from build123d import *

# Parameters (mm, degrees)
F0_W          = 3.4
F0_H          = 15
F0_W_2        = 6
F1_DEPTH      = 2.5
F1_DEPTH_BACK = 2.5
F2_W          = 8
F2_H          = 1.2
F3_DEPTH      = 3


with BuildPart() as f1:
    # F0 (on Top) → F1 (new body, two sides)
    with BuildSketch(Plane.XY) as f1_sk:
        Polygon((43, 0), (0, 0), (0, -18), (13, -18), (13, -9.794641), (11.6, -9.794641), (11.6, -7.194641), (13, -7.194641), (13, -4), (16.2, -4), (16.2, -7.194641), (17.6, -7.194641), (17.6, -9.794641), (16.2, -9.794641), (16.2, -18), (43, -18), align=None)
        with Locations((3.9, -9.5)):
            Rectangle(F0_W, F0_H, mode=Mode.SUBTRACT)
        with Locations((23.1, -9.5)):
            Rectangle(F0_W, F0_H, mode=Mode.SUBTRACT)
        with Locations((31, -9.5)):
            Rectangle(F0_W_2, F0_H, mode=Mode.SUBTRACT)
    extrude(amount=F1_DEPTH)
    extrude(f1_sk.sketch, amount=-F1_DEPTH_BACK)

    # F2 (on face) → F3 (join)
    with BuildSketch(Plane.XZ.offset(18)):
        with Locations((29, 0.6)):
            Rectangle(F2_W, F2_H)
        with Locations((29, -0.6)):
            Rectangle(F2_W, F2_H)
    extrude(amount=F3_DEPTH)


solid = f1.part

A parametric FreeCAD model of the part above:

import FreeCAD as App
import Part
import Sketcher

V = App.Vector
Q = App.Units.Quantity

doc = App.newDocument("Part")
body = doc.addObject("PartDesign::Body", "Body")

# Sketch on XY plane
sketch1 = body.newObject("Sketcher::SketchObject", "Sketch")
sketch1.AttachmentSupport = (doc.getObject("XY_Plane"), [""])
sketch1.MapMode = "FlatFace"
sketch1.addGeometry(Part.LineSegment(V(43, 0, 0), V(0, 0, 0)), False)
sketch1.addGeometry(Part.LineSegment(V(0, 0, 0), V(0, -18, 0)), False)
sketch1.addGeometry(Part.LineSegment(V(0, -18, 0), V(13, -18, 0)), False)
sketch1.addGeometry(Part.LineSegment(V(13, -18, 0), V(13, -9.8, 0)), False)
sketch1.addGeometry(Part.LineSegment(V(13, -9.8, 0), V(11.6, -9.8, 0)), False)
sketch1.addGeometry(Part.LineSegment(V(11.6, -9.8, 0), V(11.6, -7.2, 0)), False)
sketch1.addGeometry(Part.LineSegment(V(11.6, -7.2, 0), V(13, -7.2, 0)), False)
sketch1.addGeometry(Part.LineSegment(V(13, -7.2, 0), V(13, -4, 0)), False)
sketch1.addGeometry(Part.LineSegment(V(13, -4, 0), V(16.2, -4, 0)), False)
sketch1.addGeometry(Part.LineSegment(V(16.2, -4, 0), V(16.2, -7.2, 0)), False)
sketch1.addGeometry(Part.LineSegment(V(16.2, -7.2, 0), V(17.6, -7.2, 0)), False)
sketch1.addGeometry(Part.LineSegment(V(17.6, -7.2, 0), V(17.6, -9.8, 0)), False)
sketch1.addGeometry(Part.LineSegment(V(17.6, -9.8, 0), V(16.2, -9.8, 0)), False)
sketch1.addGeometry(Part.LineSegment(V(16.2, -9.8, 0), V(16.2, -18, 0)), False)
sketch1.addGeometry(Part.LineSegment(V(16.2, -18, 0), V(43, -18, 0)), False)
sketch1.addGeometry(Part.LineSegment(V(43, -18, 0), V(43, 0, 0)), False)
sketch1.addGeometry(Part.LineSegment(V(5.6, -17, 0), V(2.2, -17, 0)), False)
sketch1.addGeometry(Part.LineSegment(V(2.2, -17, 0), V(2.2, -2, 0)), False)
sketch1.addGeometry(Part.LineSegment(V(2.2, -2, 0), V(5.6, -2, 0)), False)
sketch1.addGeometry(Part.LineSegment(V(5.6, -2, 0), V(5.6, -17, 0)), False)
sketch1.addGeometry(Part.LineSegment(V(24.8, -17, 0), V(21.4, -17, 0)), False)
sketch1.addGeometry(Part.LineSegment(V(21.4, -17, 0), V(21.4, -2, 0)), False)
sketch1.addGeometry(Part.LineSegment(V(21.4, -2, 0), V(24.8, -2, 0)), False)
sketch1.addGeometry(Part.LineSegment(V(24.8, -2, 0), V(24.8, -17, 0)), False)
sketch1.addGeometry(Part.LineSegment(V(34, -17, 0), V(28, -17, 0)), False)
sketch1.addGeometry(Part.LineSegment(V(28, -17, 0), V(28, -2, 0)), False)
sketch1.addGeometry(Part.LineSegment(V(28, -2, 0), V(34, -2, 0)), False)
sketch1.addGeometry(Part.LineSegment(V(34, -2, 0), V(34, -17, 0)), False)
sketch1.addConstraint(Sketcher.Constraint("Coincident", 0, 2, 1, 1))
sketch1.addConstraint(Sketcher.Constraint("Coincident", 1, 2, 2, 1))
sketch1.addConstraint(Sketcher.Constraint("Coincident", 2, 2, 3, 1))
sketch1.addConstraint(Sketcher.Constraint("Coincident", 3, 2, 4, 1))
sketch1.addConstraint(Sketcher.Constraint("Coincident", 4, 2, 5, 1))
sketch1.addConstraint(Sketcher.Constraint("Coincident", 5, 2, 6, 1))
sketch1.addConstraint(Sketcher.Constraint("Coincident", 6, 2, 7, 1))
sketch1.addConstraint(Sketcher.Constraint("Coincident", 7, 2, 8, 1))
sketch1.addConstraint(Sketcher.Constraint("Coincident", 8, 2, 9, 1))
sketch1.addConstraint(Sketcher.Constraint("Coincident", 9, 2, 10, 1))
sketch1.addConstraint(Sketcher.Constraint("Coincident", 10, 2, 11, 1))
sketch1.addConstraint(Sketcher.Constraint("Coincident", 11, 2, 12, 1))
sketch1.addConstraint(Sketcher.Constraint("Coincident", 12, 2, 13, 1))
sketch1.addConstraint(Sketcher.Constraint("Coincident", 13, 2, 14, 1))
sketch1.addConstraint(Sketcher.Constraint("Coincident", 14, 2, 15, 1))
sketch1.addConstraint(Sketcher.Constraint("Coincident", 15, 2, 0, 1))
sketch1.addConstraint(Sketcher.Constraint("Coincident", 16, 2, 17, 1))
sketch1.addConstraint(Sketcher.Constraint("Coincident", 17, 2, 18, 1))
sketch1.addConstraint(Sketcher.Constraint("Coincident", 18, 2, 19, 1))
sketch1.addConstraint(Sketcher.Constraint("Coincident", 19, 2, 16, 1))
sketch1.addConstraint(Sketcher.Constraint("Coincident", 20, 2, 21, 1))
sketch1.addConstraint(Sketcher.Constraint("Coincident", 21, 2, 22, 1))
sketch1.addConstraint(Sketcher.Constraint("Coincident", 22, 2, 23, 1))
sketch1.addConstraint(Sketcher.Constraint("Coincident", 23, 2, 20, 1))
sketch1.addConstraint(Sketcher.Constraint("Coincident", 24, 2, 25, 1))
sketch1.addConstraint(Sketcher.Constraint("Coincident", 25, 2, 26, 1))
sketch1.addConstraint(Sketcher.Constraint("Coincident", 26, 2, 27, 1))
sketch1.addConstraint(Sketcher.Constraint("Coincident", 27, 2, 24, 1))
sketch1.addConstraint(Sketcher.Constraint("Horizontal", 0))
sketch1.addConstraint(Sketcher.Constraint("Vertical", 1))
sketch1.addConstraint(Sketcher.Constraint("Horizontal", 2))
sketch1.addConstraint(Sketcher.Constraint("Vertical", 3))
sketch1.addConstraint(Sketcher.Constraint("Horizontal", 4))
sketch1.addConstraint(Sketcher.Constraint("Vertical", 5))
sketch1.addConstraint(Sketcher.Constraint("Horizontal", 6))
sketch1.addConstraint(Sketcher.Constraint("Vertical", 7))
sketch1.addConstraint(Sketcher.Constraint("Horizontal", 8))
sketch1.addConstraint(Sketcher.Constraint("Vertical", 9))
sketch1.addConstraint(Sketcher.Constraint("Horizontal", 10))
sketch1.addConstraint(Sketcher.Constraint("Vertical", 11))
sketch1.addConstraint(Sketcher.Constraint("Horizontal", 12))
sketch1.addConstraint(Sketcher.Constraint("Vertical", 13))
sketch1.addConstraint(Sketcher.Constraint("Horizontal", 14))
sketch1.addConstraint(Sketcher.Constraint("Vertical", 15))
sketch1.addConstraint(Sketcher.Constraint("Horizontal", 16))
sketch1.addConstraint(Sketcher.Constraint("Vertical", 17))
sketch1.addConstraint(Sketcher.Constraint("Horizontal", 18))
sketch1.addConstraint(Sketcher.Constraint("Vertical", 19))
sketch1.addConstraint(Sketcher.Constraint("Horizontal", 20))
sketch1.addConstraint(Sketcher.Constraint("Vertical", 21))
sketch1.addConstraint(Sketcher.Constraint("Horizontal", 22))
sketch1.addConstraint(Sketcher.Constraint("Vertical", 23))
sketch1.addConstraint(Sketcher.Constraint("Horizontal", 24))
sketch1.addConstraint(Sketcher.Constraint("Vertical", 25))
sketch1.addConstraint(Sketcher.Constraint("Horizontal", 26))
sketch1.addConstraint(Sketcher.Constraint("Vertical", 27))
sketch1.addConstraint(Sketcher.Constraint("Coincident", 0, 2, -1, 1))
sketch1.addConstraint(Sketcher.Constraint("Horizontal", 6, 2, 9, 2))
sketch1.addConstraint(Sketcher.Constraint("Horizontal", 4, 2, 11, 2))
sketch1.addConstraint(Sketcher.Constraint("Horizontal", 2, 2, 13, 2))
sketch1.addConstraint(Sketcher.Constraint("Horizontal", 19, 2, 20, 2))
sketch1.addConstraint(Sketcher.Constraint("Horizontal", 18, 2, 21, 2))
sketch1.addConstraint(Sketcher.Constraint("Horizontal", 23, 2, 24, 2))
sketch1.addConstraint(Sketcher.Constraint("Horizontal", 22, 2, 25, 2))
sketch1.addConstraint(Sketcher.Constraint("Vertical", 3, 2, 6, 2))
sketch1.addConstraint(Sketcher.Constraint("Vertical", 9, 2, 12, 2))
sketch1.addConstraint(Sketcher.Constraint("Equal", 6, 10))
sketch1.addConstraint(Sketcher.Constraint("Equal", 18, 20))
sketch1.addConstraint(Sketcher.Constraint("DistanceX", 0, 2, 0, 1, Q("43 mm")))
sketch1.addConstraint(Sketcher.Constraint("DistanceX", 2, 1, 2, 2, Q("13 mm")))
sketch1.addConstraint(Sketcher.Constraint("DistanceX", 24, 2, 24, 1, Q("6 mm")))
sketch1.addConstraint(Sketcher.Constraint("DistanceY", 1, 2, 1, 1, Q("18 mm")))
sketch1.addConstraint(Sketcher.Constraint("DistanceY", 17, 1, 17, 2, Q("15 mm")))
sketch1.addConstraint(Sketcher.Constraint("DistanceX", 4, 2, 4, 1, Q("1.4 mm")))
sketch1.addConstraint(Sketcher.Constraint("DistanceX", 8, 1, 8, 2, Q("3.2 mm")))
sketch1.addConstraint(Sketcher.Constraint("DistanceX", 16, 2, 16, 1, Q("3.4 mm")))
sketch1.addConstraint(Sketcher.Constraint("DistanceY", 5, 1, 5, 2, Q("2.6 mm")))
sketch1.addConstraint(Sketcher.Constraint("DistanceY", 7, 2, -1, 1, Q("4 mm")))
sketch1.addConstraint(Sketcher.Constraint("DistanceY", 16, 2, -1, 1, Q("17 mm")))
sketch1.addConstraint(Sketcher.Constraint("DistanceX", -1, 1, 24, 2, Q("28 mm")))
sketch1.addConstraint(Sketcher.Constraint("DistanceX", 18, 2, 5, 2, Q("6 mm")))
sketch1.addConstraint(Sketcher.Constraint("DistanceX", -1, 1, 20, 2, Q("21.4 mm")))
sketch1.addConstraint(Sketcher.Constraint("DistanceY", 3, 1, 3, 2, Q("8.205359 mm")))
pad1 = body.newObject("PartDesign::Pad", "Pad")
pad1.Profile = sketch1
pad1.Type = "TwoLengths"
pad1.Length = 2.5
pad1.Length2 = 2.5

# Sketch on XZ plane
sketch2 = body.newObject("Sketcher::SketchObject", "Sketch001")
sketch2.AttachmentSupport = (doc.getObject("XZ_Plane"), [""])
sketch2.MapMode = "FlatFace"
sketch2.AttachmentOffset = App.Placement(V(0, 0, 18), App.Rotation())
sketch2.addGeometry(Part.LineSegment(V(25, 1.2, 0), V(25, -1.2, 0)), False)
sketch2.addGeometry(Part.LineSegment(V(25, -1.2, 0), V(33, -1.2, 0)), False)
sketch2.addGeometry(Part.LineSegment(V(33, -1.2, 0), V(33, 1.2, 0)), False)
sketch2.addGeometry(Part.LineSegment(V(33, 1.2, 0), V(25, 1.2, 0)), False)
sketch2.addConstraint(Sketcher.Constraint("Coincident", 0, 2, 1, 1))
sketch2.addConstraint(Sketcher.Constraint("Coincident", 1, 2, 2, 1))
sketch2.addConstraint(Sketcher.Constraint("Coincident", 2, 2, 3, 1))
sketch2.addConstraint(Sketcher.Constraint("Coincident", 3, 2, 0, 1))
sketch2.addConstraint(Sketcher.Constraint("Vertical", 0))
sketch2.addConstraint(Sketcher.Constraint("Horizontal", 1))
sketch2.addConstraint(Sketcher.Constraint("Vertical", 2))
sketch2.addConstraint(Sketcher.Constraint("Horizontal", 3))
sketch2.addConstraint(Sketcher.Constraint("DistanceX", 1, 1, 1, 2, Q("8 mm")))
sketch2.addConstraint(Sketcher.Constraint("DistanceY", 0, 2, 0, 1, Q("2.4 mm")))
sketch2.addConstraint(Sketcher.Constraint("DistanceX", -1, 1, 0, 2, Q("25 mm")))
sketch2.addConstraint(Sketcher.Constraint("DistanceY", 0, 2, -1, 1, Q("1.2 mm")))
pad2 = body.newObject("PartDesign::Pad", "Pad001")
pad2.Profile = sketch2
pad2.Length = 3

doc.recompute()
